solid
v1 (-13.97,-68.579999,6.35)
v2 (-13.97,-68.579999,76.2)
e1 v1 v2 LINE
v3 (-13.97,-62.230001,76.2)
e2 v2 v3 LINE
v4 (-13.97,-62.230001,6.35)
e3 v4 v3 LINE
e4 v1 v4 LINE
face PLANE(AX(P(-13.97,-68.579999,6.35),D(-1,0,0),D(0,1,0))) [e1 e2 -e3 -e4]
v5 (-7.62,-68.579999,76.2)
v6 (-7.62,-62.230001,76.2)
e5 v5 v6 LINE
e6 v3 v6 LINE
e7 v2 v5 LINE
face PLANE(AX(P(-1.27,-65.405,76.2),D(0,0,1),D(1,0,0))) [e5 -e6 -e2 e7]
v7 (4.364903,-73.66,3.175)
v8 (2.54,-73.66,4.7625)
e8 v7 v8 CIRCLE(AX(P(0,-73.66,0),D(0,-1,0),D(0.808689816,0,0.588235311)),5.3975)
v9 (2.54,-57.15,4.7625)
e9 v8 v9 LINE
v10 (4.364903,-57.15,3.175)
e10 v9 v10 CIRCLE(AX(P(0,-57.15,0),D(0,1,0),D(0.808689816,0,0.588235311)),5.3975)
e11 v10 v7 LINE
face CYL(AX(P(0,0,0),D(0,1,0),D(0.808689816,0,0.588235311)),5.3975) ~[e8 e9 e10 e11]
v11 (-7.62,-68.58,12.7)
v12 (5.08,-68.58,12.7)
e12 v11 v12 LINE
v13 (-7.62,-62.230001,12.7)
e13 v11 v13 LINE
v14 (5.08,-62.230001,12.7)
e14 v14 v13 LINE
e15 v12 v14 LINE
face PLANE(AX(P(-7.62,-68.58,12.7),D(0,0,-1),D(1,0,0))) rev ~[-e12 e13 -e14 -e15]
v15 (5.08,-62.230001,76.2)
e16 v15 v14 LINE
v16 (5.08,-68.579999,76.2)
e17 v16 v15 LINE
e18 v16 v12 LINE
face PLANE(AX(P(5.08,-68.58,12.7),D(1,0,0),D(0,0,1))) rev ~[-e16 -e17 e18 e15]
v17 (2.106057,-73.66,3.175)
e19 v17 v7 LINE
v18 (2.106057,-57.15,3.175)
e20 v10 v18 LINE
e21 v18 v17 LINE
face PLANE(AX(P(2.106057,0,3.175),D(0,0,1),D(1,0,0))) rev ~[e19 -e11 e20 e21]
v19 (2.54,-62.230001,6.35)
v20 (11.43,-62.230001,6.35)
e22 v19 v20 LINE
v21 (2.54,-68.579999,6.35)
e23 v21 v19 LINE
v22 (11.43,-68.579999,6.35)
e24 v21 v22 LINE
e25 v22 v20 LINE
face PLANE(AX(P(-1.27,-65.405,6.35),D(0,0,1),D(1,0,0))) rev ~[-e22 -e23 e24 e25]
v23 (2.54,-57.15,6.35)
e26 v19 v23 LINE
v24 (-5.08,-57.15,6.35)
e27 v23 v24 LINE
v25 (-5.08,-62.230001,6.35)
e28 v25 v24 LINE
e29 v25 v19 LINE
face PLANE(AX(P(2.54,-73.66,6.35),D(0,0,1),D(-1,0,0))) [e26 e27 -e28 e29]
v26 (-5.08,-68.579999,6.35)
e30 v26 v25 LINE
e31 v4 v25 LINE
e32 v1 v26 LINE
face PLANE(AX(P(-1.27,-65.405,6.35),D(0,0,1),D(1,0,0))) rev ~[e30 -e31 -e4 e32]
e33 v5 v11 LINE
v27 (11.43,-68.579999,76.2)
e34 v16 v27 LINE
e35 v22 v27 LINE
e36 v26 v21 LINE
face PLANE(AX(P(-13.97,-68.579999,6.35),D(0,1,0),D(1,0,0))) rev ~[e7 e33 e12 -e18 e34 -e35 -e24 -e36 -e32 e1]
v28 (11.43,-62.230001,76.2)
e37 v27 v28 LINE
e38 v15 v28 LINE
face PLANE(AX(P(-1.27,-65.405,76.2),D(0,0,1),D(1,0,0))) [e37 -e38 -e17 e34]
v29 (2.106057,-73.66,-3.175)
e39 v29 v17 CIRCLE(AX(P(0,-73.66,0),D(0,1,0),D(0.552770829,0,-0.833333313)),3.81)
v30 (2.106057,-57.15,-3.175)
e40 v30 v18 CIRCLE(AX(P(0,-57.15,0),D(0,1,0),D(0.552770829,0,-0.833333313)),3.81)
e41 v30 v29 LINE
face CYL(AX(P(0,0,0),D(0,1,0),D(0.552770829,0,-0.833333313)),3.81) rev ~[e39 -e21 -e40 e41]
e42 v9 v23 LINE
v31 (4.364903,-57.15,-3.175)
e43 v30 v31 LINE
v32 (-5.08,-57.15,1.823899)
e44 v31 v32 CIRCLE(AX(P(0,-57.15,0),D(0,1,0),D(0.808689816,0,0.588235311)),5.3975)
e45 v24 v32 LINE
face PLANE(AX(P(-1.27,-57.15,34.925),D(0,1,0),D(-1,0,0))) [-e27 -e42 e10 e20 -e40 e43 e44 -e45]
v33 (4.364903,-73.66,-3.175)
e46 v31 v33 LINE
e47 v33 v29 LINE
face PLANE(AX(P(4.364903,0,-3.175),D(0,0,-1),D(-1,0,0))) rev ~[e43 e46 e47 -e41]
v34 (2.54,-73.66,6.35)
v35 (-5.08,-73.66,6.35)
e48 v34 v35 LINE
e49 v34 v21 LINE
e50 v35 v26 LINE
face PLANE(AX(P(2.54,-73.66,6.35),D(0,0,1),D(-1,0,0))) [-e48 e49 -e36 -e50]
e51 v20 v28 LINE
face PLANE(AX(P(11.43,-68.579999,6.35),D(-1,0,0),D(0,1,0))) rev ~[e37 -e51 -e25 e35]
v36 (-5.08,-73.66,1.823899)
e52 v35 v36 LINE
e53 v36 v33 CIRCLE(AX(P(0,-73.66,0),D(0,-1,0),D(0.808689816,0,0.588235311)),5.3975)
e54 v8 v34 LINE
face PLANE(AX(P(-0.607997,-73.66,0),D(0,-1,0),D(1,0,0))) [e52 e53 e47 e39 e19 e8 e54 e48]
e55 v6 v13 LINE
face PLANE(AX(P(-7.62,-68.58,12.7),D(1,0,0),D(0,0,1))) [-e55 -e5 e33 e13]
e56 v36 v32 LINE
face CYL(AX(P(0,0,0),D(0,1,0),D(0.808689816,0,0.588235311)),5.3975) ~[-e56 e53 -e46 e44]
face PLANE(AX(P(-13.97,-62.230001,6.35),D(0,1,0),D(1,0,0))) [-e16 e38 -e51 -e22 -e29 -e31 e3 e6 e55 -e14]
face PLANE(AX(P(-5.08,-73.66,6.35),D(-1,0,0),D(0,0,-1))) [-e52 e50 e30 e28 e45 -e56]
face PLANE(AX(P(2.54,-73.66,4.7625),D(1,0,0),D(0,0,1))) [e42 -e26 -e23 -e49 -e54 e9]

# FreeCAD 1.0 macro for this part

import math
import FreeCAD as App
import Part
import Sketcher
Q = App.Units.Quantity

doc = App.newDocument("Part")
params = doc.addObject("Spreadsheet::Sheet", "Params")
for row, (alias, value) in enumerate([
    ("sketch1_radius", "0.15 in"),
    ("pad1_length", "2.9 in"),
    ("sketch2_width", "0.3 in"),
    ("sketch2_height", "0.0625 in"),
    ("pad2_length", "2.9 in"),
    ("sketch3_width", "1 in"),
    ("sketch3_height", "0.25 in"),
    ("pad3_length", "2.75 in"),
    ("sketch4_width", "0.5 in"),
    ("sketch4_height", "2.5 in"),
    ("sketch5_width", "1 in"),
    ("sketch5_height", "3.25 in"),
    ("pocket2_length", "2.25 in"),
], start=1):
    params.set(f"A{row}", alias)
    params.set(f"B{row}", "=" + value)
    params.setAlias(f"B{row}", alias)

body = doc.addObject("PartDesign::Body", "Body")

sketch1 = body.newObject("Sketcher::SketchObject", "Sketch")
sketch1.AttachmentSupport = (doc.getObject("XZ_Plane"), [""])
sketch1.MapMode = "FlatFace"
sketch1.addGeometry(Part.ArcOfCircle(Part.Circle(App.Vector(0, 0, 0), App.Vector(0, 0, 1), 3.81), math.radians(56.442688), math.radians(303.557312)), False)
sketch1.addGeometry(Part.LineSegment(App.Vector(2.106057, 3.175, 0), App.Vector(4.364903, 3.175, 0)), False)
sketch1.addGeometry(Part.ArcOfCircle(Part.Circle(App.Vector(0, 0, 0), App.Vector(0, 0, 1), 5.3975), math.radians(36.03188), math.radians(323.96812)), False)
sketch1.addGeometry(Part.LineSegment(App.Vector(4.364903, -3.175, 0), App.Vector(2.106057, -3.175, 0)), False)
sketch1.addConstraint(Sketcher.Constraint("Coincident", 0, 1, 1, 1))
sketch1.addConstraint(Sketcher.Constraint("Coincident", 1, 2, 2, 1))
sketch1.addConstraint(Sketcher.Constraint("Coincident", 2, 2, 3, 1))
sketch1.addConstraint(Sketcher.Constraint("Coincident", 3, 2, 0, 2))
sketch1.addConstraint(Sketcher.Constraint("Horizontal", 1))
sketch1.addConstraint(Sketcher.Constraint("Horizontal", 3))
sketch1.addConstraint(Sketcher.Constraint("Coincident", 0, 3, -1, 1))
sketch1.addConstraint(Sketcher.Constraint("Coincident", 2, 3, -1, 1))
sketch1.addConstraint(Sketcher.Constraint("Vertical", 1, 2, 2, 2))
sketch1.addConstraint(Sketcher.Constraint("Radius", 0, Q("0.15 in")))
sketch1.addConstraint(Sketcher.Constraint("Radius", 2, Q("0.2125 in")))
sketch1.addConstraint(Sketcher.Constraint("DistanceY", 2, 2, 1, 2, Q("0.25 in")))
sketch1.setExpression("Constraints[9]", "Params.sketch1_radius")
pad1 = body.newObject("PartDesign::Pad", "Pad")
pad1.Profile = sketch1
pad1.setExpression("Length", "Params.pad1_length")

sketch2 = body.newObject("Sketcher::SketchObject", "Sketch001")
sketch2.AttachmentSupport = (doc.getObject("XZ_Plane"), [""])
sketch2.MapMode = "FlatFace"
sketch2.AttachmentOffset = App.Placement(App.Vector(0, 0, 2.9 * 25.4), App.Rotation())
sketch2.addGeometry(Part.LineSegment(App.Vector(-5.08, 6.35, 0), App.Vector(-5.08, 1.823899, 0)), False)
sketch2.addGeometry(Part.ArcOfCircle(Part.Circle(App.Vector(0, 0.000001, 0), App.Vector(0, 0, 1), 5.397499), math.radians(61.927505), math.radians(160.250081)), False)
sketch2.addGeometry(Part.LineSegment(App.Vector(2.54, 4.7625, 0), App.Vector(2.54, 6.35, 0)), False)
sketch2.addGeometry(Part.LineSegment(App.Vector(2.54, 6.35, 0), App.Vector(-5.08, 6.35, 0)), False)
sketch2.addConstraint(Sketcher.Constraint("Coincident", 0, 2, 1, 2))
sketch2.addConstraint(Sketcher.Constraint("Coincident", 1, 1, 2, 1))
sketch2.addConstraint(Sketcher.Constraint("Coincident", 2, 2, 3, 1))
sketch2.addConstraint(Sketcher.Constraint("Coincident", 3, 2, 0, 1))
sketch2.addConstraint(Sketcher.Constraint("Vertical", 0))
sketch2.addConstraint(Sketcher.Constraint("Vertical", 2))
sketch2.addConstraint(Sketcher.Constraint("Horizontal", 3))
sketch2.addConstraint(Sketcher.Constraint("Coincident", 1, 3, -1, 1))
sketch2.addConstraint(Sketcher.Constraint("DistanceX", 3, 2, 3, 1, Q("0.3 in")))
sketch2.addConstraint(Sketcher.Constraint("DistanceX", 0, 2, -1, 1, Q("0.2 in")))
sketch2.addConstraint(Sketcher.Constraint("Radius", 1, Q("0.2125 in")))
sketch2.addConstraint(Sketcher.Constraint("DistanceY", 2, 1, 2, 2, Q("0.0625 in")))
sketch2.setExpression("Constraints[8]", "Params.sketch2_width")
sketch2.setExpression("Constraints[11]", "Params.sketch2_height")
pad2 = body.newObject("PartDesign::Pad", "Pad001")
pad2.Profile = sketch2
pad2.setExpression("Length", "Params.pad2_length")
pad2.Reversed = True

sketch3 = body.newObject("Sketcher::SketchObject", "Sketch002")
sketch3.AttachmentSupport = (doc.getObject("XY_Plane"), [""])
sketch3.MapMode = "FlatFace"
sketch3.AttachmentOffset = App.Placement(App.Vector(0, 0, 0.25 * 25.4), App.Rotation())
sketch3.addGeometry(Part.LineSegment(App.Vector(-13.97, -62.230001, 0), App.Vector(-13.97, -68.579999, 0)), False)
sketch3.addGeometry(Part.LineSegment(App.Vector(-13.97, -68.579999, 0), App.Vector(11.43, -68.579999, 0)), False)
sketch3.addGeometry(Part.LineSegment(App.Vector(11.43, -68.579999, 0), App.Vector(11.43, -62.230001, 0)), False)
sketch3.addGeometry(Part.LineSegment(App.Vector(11.43, -62.230001, 0), App.Vector(-13.97, -62.230001, 0)), False)
sketch3.addGeometry(Part.LineSegment(App.Vector(-13.97, -5.08, 0), App.Vector(-13.97, -11.43, 0)), False)
sketch3.addGeometry(Part.LineSegment(App.Vector(-13.97, -11.43, 0), App.Vector(11.43, -11.43, 0)), False)
sketch3.addGeometry(Part.LineSegment(App.Vector(11.43, -11.43, 0), App.Vector(11.43, -5.08, 0)), False)
sketch3.addGeometry(Part.LineSegment(App.Vector(11.43, -5.08, 0), App.Vector(-13.97, -5.08, 0)), False)
sketch3.addConstraint(Sketcher.Constraint("Coincident", 0, 2, 1, 1))
sketch3.addConstraint(Sketcher.Constraint("Coincident", 1, 2, 2, 1))
sketch3.addConstraint(Sketcher.Constraint("Coincident", 2, 2, 3, 1))
sketch3.addConstraint(Sketcher.Constraint("Coincident", 3, 2, 0, 1))
sketch3.addConstraint(Sketcher.Constraint("Coincident", 4, 2, 5, 1))
sketch3.addConstraint(Sketcher.Constraint("Coincident", 5, 2, 6, 1))
sketch3.addConstraint(Sketcher.Constraint("Coincident", 6, 2, 7, 1))
sketch3.addConstraint(Sketcher.Constraint("Coincident", 7, 2, 4, 1))
sketch3.addConstraint(Sketcher.Constraint("Vertical", 0))
sketch3.addConstraint(Sketcher.Constraint("Horizontal", 1))
sketch3.addConstraint(Sketcher.Constraint("Vertical", 2))
sketch3.addConstraint(Sketcher.Constraint("Horizontal", 3))
sketch3.addConstraint(Sketcher.Constraint("Vertical", 4))
sketch3.addConstraint(Sketcher.Constraint("Horizontal", 5))
sketch3.addConstraint(Sketcher.Constraint("Vertical", 6))
sketch3.addConstraint(Sketcher.Constraint("Horizontal", 7))
sketch3.addConstraint(Sketcher.Constraint("Vertical", 3, 2, 4, 2))
sketch3.addConstraint(Sketcher.Constraint("Vertical", 2, 2, 5, 2))
sketch3.addConstraint(Sketcher.Constraint("Equal", 2, 4))
sketch3.addConstraint(Sketcher.Constraint("DistanceX", 1, 1, 1, 2, Q("1 in")))
sketch3.addConstraint(Sketcher.Constraint("DistanceY", 3, 2, 4, 2, Q("2 in")))
sketch3.addConstraint(Sketcher.Constraint("DistanceY", 0, 2, 0, 1, Q("0.25 in")))
sketch3.addConstraint(Sketcher.Constraint("DistanceY", 0, 2, -1, 1, Q("2.7 in")))
sketch3.addConstraint(Sketcher.Constraint("DistanceX", 0, 2, -1, 1, Q("0.55 in")))
sketch3.setExpression("Constraints[19]", "Params.sketch3_width")
sketch3.setExpression("Constraints[21]", "Params.sketch3_height")
pad3 = body.newObject("PartDesign::Pad", "Pad002")
pad3.Profile = sketch3
pad3.setExpression("Length", "Params.pad3_length")

sketch4 = body.newObject("Sketcher::SketchObject", "Sketch003")
sketch4.AttachmentSupport = (doc.getObject("XZ_Plane"), [""])
sketch4.MapMode = "FlatFace"
sketch4.AttachmentOffset = App.Placement(App.Vector(0, 0, 2.7 * 25.4), App.Rotation())
sketch4.addGeometry(Part.LineSegment(App.Vector(-7.62, 76.2, 0), App.Vector(-7.62, 12.7, 0)), False)
sketch4.addGeometry(Part.LineSegment(App.Vector(-7.62, 12.7, 0), App.Vector(5.08, 12.7, 0)), False)
sketch4.addGeometry(Part.LineSegment(App.Vector(5.08, 12.7, 0), App.Vector(5.08, 76.2, 0)), False)
sketch4.addGeometry(Part.LineSegment(App.Vector(5.08, 76.2, 0), App.Vector(-7.62, 76.2, 0)), False)
sketch4.addConstraint(Sketcher.Constraint("Coincident", 0, 2, 1, 1))
sketch4.addConstraint(Sketcher.Constraint("Coincident", 1, 2, 2, 1))
sketch4.addConstraint(Sketcher.Constraint("Coincident", 2, 2, 3, 1))
sketch4.addConstraint(Sketcher.Constraint("Coincident", 3, 2, 0, 1))
sketch4.addConstraint(Sketcher.Constraint("Vertical", 0))
sketch4.addConstraint(Sketcher.Constraint("Horizontal", 1))
sketch4.addConstraint(Sketcher.Constraint("Vertical", 2))
sketch4.addConstraint(Sketcher.Constraint("Horizontal", 3))
sketch4.addConstraint(Sketcher.Constraint("DistanceX", 1, 1, 1, 2, Q("0.5 in")))
sketch4.addConstraint(Sketcher.Constraint("DistanceY", 0, 2, 0, 1, Q("2.5 in")))
sketch4.addConstraint(Sketcher.Constraint("DistanceY", -1, 1, 2, 2, Q("3 in")))
sketch4.addConstraint(Sketcher.Constraint("DistanceX", 0, 2, -1, 1, Q("0.3 in")))
sketch4.setExpression("Constraints[8]", "Params.sketch4_width")
sketch4.setExpression("Constraints[9]", "Params.sketch4_height")
pocket1 = body.newObject("PartDesign::Pocket", "Pocket")
pocket1.Profile = sketch4
pocket1.Type = "ThroughAll"

sketch5 = body.newObject("Sketcher::SketchObject", "Sketch004")
sketch5.AttachmentSupport = (doc.getObject("XZ_Plane"), [""])
sketch5.MapMode = "FlatFace"
sketch5.addGeometry(Part.LineSegment(App.Vector(11.43, 76.2, 0), App.Vector(11.43, -6.35, 0)), False)
sketch5.addGeometry(Part.LineSegment(App.Vector(11.43, -6.35, 0), App.Vector(-13.97, -6.35, 0)), False)
sketch5.addGeometry(Part.LineSegment(App.Vector(-13.97, -6.35, 0), App.Vector(-13.97, 76.2, 0)), False)
sketch5.addGeometry(Part.LineSegment(App.Vector(-13.97, 76.2, 0), App.Vector(11.43, 76.2, 0)), False)
sketch5.addConstraint(Sketcher.Constraint("Coincident", 0, 2, 1, 1))
sketch5.addConstraint(Sketcher.Constraint("Coincident", 1, 2, 2, 1))
sketch5.addConstraint(Sketcher.Constraint("Coincident", 2, 2, 3, 1))
sketch5.addConstraint(Sketcher.Constraint("Coincident", 3, 2, 0, 1))
sketch5.addConstraint(Sketcher.Constraint("Vertical", 0))
sketch5.addConstraint(Sketcher.Constraint("Horizontal", 1))
sketch5.addConstraint(Sketcher.Constraint("Vertical", 2))
sketch5.addConstraint(Sketcher.Constraint("Horizontal", 3))
sketch5.addConstraint(Sketcher.Constraint("DistanceX", 1, 2, 1, 1, Q("1 in")))
sketch5.addConstraint(Sketcher.Constraint("DistanceY", -1, 1, 2, 2, Q("3 in")))
sketch5.addConstraint(Sketcher.Constraint("DistanceY", 0, 2, 0, 1, Q("3.25 in")))
sketch5.addConstraint(Sketcher.Constraint("DistanceX", -1, 1, 0, 2, Q("0.45 in")))
sketch5.setExpression("Constraints[8]", "Params.sketch5_width")
sketch5.setExpression("Constraints[10]", "Params.sketch5_height")
pocket2 = body.newObject("PartDesign::Pocket", "Pocket001")
pocket2.Profile = sketch5
pocket2.setExpression("Length", "Params.pocket2_length")
pocket2.Reversed = True

doc.recompute()
